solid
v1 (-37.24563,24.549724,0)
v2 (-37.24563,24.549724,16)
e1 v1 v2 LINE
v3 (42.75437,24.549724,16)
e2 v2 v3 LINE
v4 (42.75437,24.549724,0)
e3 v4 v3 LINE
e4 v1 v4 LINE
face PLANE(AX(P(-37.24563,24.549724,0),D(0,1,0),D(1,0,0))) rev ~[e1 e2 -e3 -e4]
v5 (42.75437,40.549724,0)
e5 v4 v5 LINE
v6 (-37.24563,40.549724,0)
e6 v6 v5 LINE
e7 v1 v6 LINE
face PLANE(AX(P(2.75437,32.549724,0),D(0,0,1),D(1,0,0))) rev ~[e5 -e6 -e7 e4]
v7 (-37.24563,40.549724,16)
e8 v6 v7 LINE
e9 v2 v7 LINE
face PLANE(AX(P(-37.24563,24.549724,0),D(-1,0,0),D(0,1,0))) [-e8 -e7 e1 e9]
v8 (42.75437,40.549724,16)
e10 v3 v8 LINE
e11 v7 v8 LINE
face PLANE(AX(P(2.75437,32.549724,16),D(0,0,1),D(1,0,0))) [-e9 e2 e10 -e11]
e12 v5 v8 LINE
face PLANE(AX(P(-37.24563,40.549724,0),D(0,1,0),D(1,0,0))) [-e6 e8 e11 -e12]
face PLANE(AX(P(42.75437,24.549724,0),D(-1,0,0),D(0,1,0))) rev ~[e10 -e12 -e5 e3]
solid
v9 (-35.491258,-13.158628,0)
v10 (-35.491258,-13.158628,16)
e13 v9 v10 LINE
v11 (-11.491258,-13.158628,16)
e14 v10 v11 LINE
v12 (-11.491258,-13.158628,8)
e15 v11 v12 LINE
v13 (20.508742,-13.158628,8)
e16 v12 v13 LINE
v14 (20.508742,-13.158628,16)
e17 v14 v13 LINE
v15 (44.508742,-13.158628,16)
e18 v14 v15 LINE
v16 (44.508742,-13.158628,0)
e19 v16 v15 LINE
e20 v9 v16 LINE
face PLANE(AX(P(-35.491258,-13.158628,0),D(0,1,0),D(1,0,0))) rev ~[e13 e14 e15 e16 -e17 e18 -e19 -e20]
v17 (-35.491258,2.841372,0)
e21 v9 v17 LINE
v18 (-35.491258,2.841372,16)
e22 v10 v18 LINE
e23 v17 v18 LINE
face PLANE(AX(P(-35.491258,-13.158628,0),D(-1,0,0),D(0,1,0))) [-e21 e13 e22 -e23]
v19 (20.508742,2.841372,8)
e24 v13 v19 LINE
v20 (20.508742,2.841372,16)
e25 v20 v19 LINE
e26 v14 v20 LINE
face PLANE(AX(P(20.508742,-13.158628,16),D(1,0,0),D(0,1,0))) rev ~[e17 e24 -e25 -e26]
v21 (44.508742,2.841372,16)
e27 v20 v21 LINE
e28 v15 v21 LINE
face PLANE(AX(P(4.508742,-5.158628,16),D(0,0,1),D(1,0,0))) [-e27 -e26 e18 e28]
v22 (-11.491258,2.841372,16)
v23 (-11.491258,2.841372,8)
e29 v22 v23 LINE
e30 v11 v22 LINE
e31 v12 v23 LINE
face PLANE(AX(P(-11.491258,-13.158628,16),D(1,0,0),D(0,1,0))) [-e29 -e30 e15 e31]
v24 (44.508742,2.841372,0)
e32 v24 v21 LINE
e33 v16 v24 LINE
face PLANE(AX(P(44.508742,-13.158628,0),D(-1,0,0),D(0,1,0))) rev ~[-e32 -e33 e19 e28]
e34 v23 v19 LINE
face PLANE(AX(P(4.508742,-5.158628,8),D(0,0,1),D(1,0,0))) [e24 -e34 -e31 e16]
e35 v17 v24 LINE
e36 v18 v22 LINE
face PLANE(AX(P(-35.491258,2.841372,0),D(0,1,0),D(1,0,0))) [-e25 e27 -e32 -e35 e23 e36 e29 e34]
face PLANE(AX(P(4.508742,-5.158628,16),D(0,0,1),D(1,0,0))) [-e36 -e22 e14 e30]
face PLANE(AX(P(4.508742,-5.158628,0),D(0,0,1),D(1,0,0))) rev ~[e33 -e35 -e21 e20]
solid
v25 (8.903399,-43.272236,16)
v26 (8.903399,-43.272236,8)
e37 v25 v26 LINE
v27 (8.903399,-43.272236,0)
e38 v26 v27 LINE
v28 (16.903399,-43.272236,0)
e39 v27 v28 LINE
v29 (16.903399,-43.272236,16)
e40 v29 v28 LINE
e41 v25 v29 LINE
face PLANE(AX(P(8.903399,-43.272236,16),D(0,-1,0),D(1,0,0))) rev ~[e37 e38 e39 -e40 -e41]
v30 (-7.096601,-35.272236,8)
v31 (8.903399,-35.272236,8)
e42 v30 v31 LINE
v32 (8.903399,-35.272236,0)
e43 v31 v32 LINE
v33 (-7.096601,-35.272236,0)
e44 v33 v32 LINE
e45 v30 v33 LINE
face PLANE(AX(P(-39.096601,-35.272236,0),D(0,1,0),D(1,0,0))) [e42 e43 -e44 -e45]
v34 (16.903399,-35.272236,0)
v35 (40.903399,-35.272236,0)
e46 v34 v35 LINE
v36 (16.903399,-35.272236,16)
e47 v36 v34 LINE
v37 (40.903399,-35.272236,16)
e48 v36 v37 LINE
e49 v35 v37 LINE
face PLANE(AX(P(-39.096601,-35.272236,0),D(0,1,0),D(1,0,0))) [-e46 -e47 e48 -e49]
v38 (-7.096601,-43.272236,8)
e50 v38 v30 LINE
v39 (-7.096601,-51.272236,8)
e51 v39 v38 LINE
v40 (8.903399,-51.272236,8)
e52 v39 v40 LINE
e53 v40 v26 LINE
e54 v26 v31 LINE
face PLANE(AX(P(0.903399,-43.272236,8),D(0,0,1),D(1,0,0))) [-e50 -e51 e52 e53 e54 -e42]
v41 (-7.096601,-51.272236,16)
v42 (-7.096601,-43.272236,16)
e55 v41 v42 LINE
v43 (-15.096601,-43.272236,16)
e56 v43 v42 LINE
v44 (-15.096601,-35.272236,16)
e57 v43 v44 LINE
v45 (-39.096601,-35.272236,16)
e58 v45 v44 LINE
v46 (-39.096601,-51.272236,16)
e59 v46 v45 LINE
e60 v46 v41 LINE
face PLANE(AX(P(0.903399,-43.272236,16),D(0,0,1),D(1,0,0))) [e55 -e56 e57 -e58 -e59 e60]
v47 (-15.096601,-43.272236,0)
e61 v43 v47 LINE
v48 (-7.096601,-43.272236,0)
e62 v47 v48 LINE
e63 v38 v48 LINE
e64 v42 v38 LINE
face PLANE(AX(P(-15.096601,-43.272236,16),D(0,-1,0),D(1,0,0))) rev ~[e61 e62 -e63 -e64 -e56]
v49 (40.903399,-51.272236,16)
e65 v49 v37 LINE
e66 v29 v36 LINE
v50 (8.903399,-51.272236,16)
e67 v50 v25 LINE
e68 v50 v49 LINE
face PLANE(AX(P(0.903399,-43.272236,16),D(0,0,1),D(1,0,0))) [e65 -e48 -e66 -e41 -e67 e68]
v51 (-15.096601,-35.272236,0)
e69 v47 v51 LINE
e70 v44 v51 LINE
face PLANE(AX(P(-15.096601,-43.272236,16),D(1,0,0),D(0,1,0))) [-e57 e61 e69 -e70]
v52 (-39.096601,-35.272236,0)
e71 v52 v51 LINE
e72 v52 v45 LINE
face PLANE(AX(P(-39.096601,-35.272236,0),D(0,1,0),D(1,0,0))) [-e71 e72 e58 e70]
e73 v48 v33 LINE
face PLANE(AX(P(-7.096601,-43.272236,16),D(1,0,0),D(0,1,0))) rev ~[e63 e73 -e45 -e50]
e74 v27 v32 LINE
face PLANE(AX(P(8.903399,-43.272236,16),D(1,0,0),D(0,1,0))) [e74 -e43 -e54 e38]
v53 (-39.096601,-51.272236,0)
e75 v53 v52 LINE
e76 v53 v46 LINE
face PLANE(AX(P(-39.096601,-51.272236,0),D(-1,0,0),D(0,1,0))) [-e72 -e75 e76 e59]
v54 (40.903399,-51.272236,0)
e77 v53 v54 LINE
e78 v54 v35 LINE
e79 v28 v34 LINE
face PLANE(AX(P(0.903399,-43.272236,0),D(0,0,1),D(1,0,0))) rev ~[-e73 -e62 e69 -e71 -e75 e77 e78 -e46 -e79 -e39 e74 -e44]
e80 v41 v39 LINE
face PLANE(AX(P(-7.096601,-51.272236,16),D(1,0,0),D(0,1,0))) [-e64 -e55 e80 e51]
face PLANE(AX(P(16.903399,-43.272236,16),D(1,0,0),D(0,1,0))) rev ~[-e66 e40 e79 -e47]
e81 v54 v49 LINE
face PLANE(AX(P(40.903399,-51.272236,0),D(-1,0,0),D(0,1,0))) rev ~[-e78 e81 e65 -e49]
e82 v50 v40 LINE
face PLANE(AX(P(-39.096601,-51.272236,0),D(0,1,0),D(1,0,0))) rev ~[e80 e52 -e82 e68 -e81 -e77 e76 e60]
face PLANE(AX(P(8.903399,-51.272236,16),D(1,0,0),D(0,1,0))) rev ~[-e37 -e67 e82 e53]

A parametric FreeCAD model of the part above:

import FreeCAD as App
import Part
import Sketcher

V = App.Vector
Q = App.Units.Quantity

doc = App.newDocument("Part")
body = doc.addObject("PartDesign::Body", "Body")
body.AllowCompound = True

# Sketch on XY plane
sketch1 = body.newObject("Sketcher::SketchObject", "Sketch")
sketch1.AttachmentSupport = (doc.getObject("XY_Plane"), [""])
sketch1.MapMode = "FlatFace"
sketch1.addGeometry([
    Part.LineSegment(V(-37, 41, 0), V(-37, 25, 0)),  # 0
    Part.LineSegment(V(-37, 25, 0), V(43, 25, 0)),  # 1
    Part.LineSegment(V(43, 25, 0), V(43, 41, 0)),  # 2
    Part.LineSegment(V(43, 41, 0), V(-37, 41, 0)),  # 3
    Part.LineSegment(V(-35, 3, 0), V(-35, -13, 0)),  # 4
    Part.LineSegment(V(-35, -13, 0), V(45, -13, 0)),  # 5
    Part.LineSegment(V(45, -13, 0), V(45, 3, 0)),  # 6
    Part.LineSegment(V(45, 3, 0), V(-35, 3, 0)),  # 7
    Part.LineSegment(V(-39, -35, 0), V(-39, -51, 0)),  # 8
    Part.LineSegment(V(-39, -51, 0), V(41, -51, 0)),  # 9
    Part.LineSegment(V(41, -51, 0), V(41, -35, 0)),  # 10
    Part.LineSegment(V(41, -35, 0), V(-39, -35, 0)),  # 11
], False)
sketch1.addConstraint([
    Sketcher.Constraint("Coincident", 0, 2, 1, 1),
    Sketcher.Constraint("Coincident", 1, 2, 2, 1),
    Sketcher.Constraint("Coincident", 2, 2, 3, 1),
    Sketcher.Constraint("Coincident", 3, 2, 0, 1),
    Sketcher.Constraint("Coincident", 4, 2, 5, 1),
    Sketcher.Constraint("Coincident", 5, 2, 6, 1),
    Sketcher.Constraint("Coincident", 6, 2, 7, 1),
    Sketcher.Constraint("Coincident", 7, 2, 4, 1),
    Sketcher.Constraint("Coincident", 8, 2, 9, 1),
    Sketcher.Constraint("Coincident", 9, 2, 10, 1),
    Sketcher.Constraint("Coincident", 10, 2, 11, 1),
    Sketcher.Constraint("Coincident", 11, 2, 8, 1),
    Sketcher.Constraint("Vertical", 0),
    Sketcher.Constraint("Horizontal", 1),
    Sketcher.Constraint("Vertical", 2),
    Sketcher.Constraint("Horizontal", 3),
    Sketcher.Constraint("Vertical", 4),
    Sketcher.Constraint("Horizontal", 5),
    Sketcher.Constraint("Vertical", 6),
    Sketcher.Constraint("Horizontal", 7),
    Sketcher.Constraint("Vertical", 8),
    Sketcher.Constraint("Horizontal", 9),
    Sketcher.Constraint("Vertical", 10),
    Sketcher.Constraint("Horizontal", 11),
    Sketcher.Constraint("Equal", 3, 5),
    Sketcher.Constraint("Equal", 7, 9),
    Sketcher.Constraint("Equal", 2, 4),
    Sketcher.Constraint("Equal", 6, 8),
    Sketcher.Constraint("DistanceX", 1, 1, 1, 2, Q("80 mm")),
    Sketcher.Constraint("DistanceY", 0, 2, 0, 1, Q("16 mm")),
    Sketcher.Constraint("DistanceX", 8, 2, -1, 1, Q("39.096601 mm")),
    Sketcher.Constraint("DistanceX", 0, 2, -1, 1, Q("37.24563 mm")),
    Sketcher.Constraint("DistanceX", 4, 2, -1, 1, Q("35.491258 mm")),
    Sketcher.Constraint("DistanceY", -1, 1, 6, 2, Q("2.841372 mm")),
    Sketcher.Constraint("DistanceY", 4, 2, 3, 2, Q("53.708352 mm")),
    Sketcher.Constraint("DistanceY", 8, 2, 0, 2, Q("75.82196 mm")),
])
pad1 = body.newObject("PartDesign::Pad", "Pad")
pad1.Profile = sketch1
pad1.Length = 16

# Sketch on XY plane
sketch2 = body.newObject("Sketcher::SketchObject", "Sketch001")
sketch2.AttachmentSupport = (doc.getObject("XY_Plane"), [""])
sketch2.MapMode = "FlatFace"
sketch2.AttachmentOffset = App.Placement(V(0, 0, 16), App.Rotation())
sketch2.addGeometry([
    Part.LineSegment(V(-11, 3, 0), V(-11, -13, 0)),
    Part.LineSegment(V(-11, -13, 0), V(21, -13, 0)),
    Part.LineSegment(V(21, -13, 0), V(21, 3, 0)),
    Part.LineSegment(V(21, 3, 0), V(-11, 3, 0)),
], False)
sketch2.addConstraint([
    Sketcher.Constraint("Coincident", 0, 2, 1, 1),
    Sketcher.Constraint("Coincident", 1, 2, 2, 1),
    Sketcher.Constraint("Coincident", 2, 2, 3, 1),
    Sketcher.Constraint("Coincident", 3, 2, 0, 1),
    Sketcher.Constraint("Vertical", 0),
    Sketcher.Constraint("Horizontal", 1),
    Sketcher.Constraint("Vertical", 2),
    Sketcher.Constraint("Horizontal", 3),
    Sketcher.Constraint("DistanceX", 1, 1, 1, 2, Q("32 mm")),
    Sketcher.Constraint("DistanceY", 0, 2, 0, 1, Q("16 mm")),
    Sketcher.Constraint("DistanceY", -1, 1, 2, 2, Q("2.841372 mm")),
    Sketcher.Constraint("DistanceX", 0, 2, -1, 1, Q("11.491258 mm")),
])
pocket1 = body.newObject("PartDesign::Pocket", "Pocket")
pocket1.Profile = sketch2
pocket1.Length = 8

# Sketch on XY plane
sketch3 = body.newObject("Sketcher::SketchObject", "Sketch002")
sketch3.AttachmentSupport = (doc.getObject("XY_Plane"), [""])
sketch3.MapMode = "FlatFace"
sketch3.AttachmentOffset = App.Placement(V(0, 0, 16), App.Rotation())
sketch3.addGeometry([
    Part.LineSegment(V(-7, -35, 0), V(-7, -51, 0)),
    Part.LineSegment(V(-7, -51, 0), V(9, -51, 0)),
    Part.LineSegment(V(9, -51, 0), V(9, -35, 0)),
    Part.LineSegment(V(9, -35, 0), V(-7, -35, 0)),
], False)
sketch3.addConstraint([
    Sketcher.Constraint("Coincident", 0, 2, 1, 1),
    Sketcher.Constraint("Coincident", 1, 2, 2, 1),
    Sketcher.Constraint("Coincident", 2, 2, 3, 1),
    Sketcher.Constraint("Coincident", 3, 2, 0, 1),
    Sketcher.Constraint("Vertical", 0),
    Sketcher.Constraint("Horizontal", 1),
    Sketcher.Constraint("Vertical", 2),
    Sketcher.Constraint("Horizontal", 3),
    Sketcher.Constraint("Equal", 3, 0),
    Sketcher.Constraint("DistanceX", 1, 1, 1, 2, Q("16 mm")),
    Sketcher.Constraint("DistanceX", 0, 2, -1, 1, Q("7.096601 mm")),
    Sketcher.Constraint("DistanceY", 0, 2, -1, 1, Q("51.272236 mm")),
])
pocket2 = body.newObject("PartDesign::Pocket", "Pocket001")
pocket2.Profile = sketch3
pocket2.Length = 8

# Sketch on XY plane
sketch4 = body.newObject("Sketcher::SketchObject", "Sketch003")
sketch4.AttachmentSupport = (doc.getObject("XY_Plane"), [""])
sketch4.MapMode = "FlatFace"
sketch4.AttachmentOffset = App.Placement(V(0, 0, 16), App.Rotation())
sketch4.addGeometry([
    Part.LineSegment(V(9, -35, 0), V(9, -43, 0)),
    Part.LineSegment(V(9, -43, 0), V(17, -43, 0)),
    Part.LineSegment(V(17, -43, 0), V(17, -35, 0)),
    Part.LineSegment(V(17, -35, 0), V(9, -35, 0)),
], False)
sketch4.addConstraint([
    Sketcher.Constraint("Coincident", 0, 2, 1, 1),
    Sketcher.Constraint("Coincident", 1, 2, 2, 1),
    Sketcher.Constraint("Coincident", 2, 2, 3, 1),
    Sketcher.Constraint("Coincident", 3, 2, 0, 1),
    Sketcher.Constraint("Vertical", 0),
    Sketcher.Constraint("Horizontal", 1),
    Sketcher.Constraint("Vertical", 2),
    Sketcher.Constraint("Horizontal", 3),
    Sketcher.Constraint("Equal", 3, 0),
    Sketcher.Constraint("DistanceX", 1, 1, 1, 2, Q("8 mm")),
    Sketcher.Constraint("DistanceX", -1, 1, 0, 2, Q("8.903399 mm")),
    Sketcher.Constraint("DistanceY", 0, 2, -1, 1, Q("43.272236 mm")),
])
pocket3 = body.newObject("PartDesign::Pocket", "Pocket002")
pocket3.Profile = sketch4
pocket3.Length = 16

# Sketch on XY plane
sketch5 = body.newObject("Sketcher::SketchObject", "Sketch004")
sketch5.AttachmentSupport = (doc.getObject("XY_Plane"), [""])
sketch5.MapMode = "FlatFace"
sketch5.AttachmentOffset = App.Placement(V(0, 0, 16), App.Rotation())
sketch5.addGeometry([
    Part.LineSegment(V(-15, -35, 0), V(-15, -43, 0)),
    Part.LineSegment(V(-15, -43, 0), V(-7, -43, 0)),
    Part.LineSegment(V(-7, -43, 0), V(-7, -35, 0)),
    Part.LineSegment(V(-7, -35, 0), V(-15, -35, 0)),
], False)
sketch5.addConstraint([
    Sketcher.Constraint("Coincident", 0, 2, 1, 1),
    Sketcher.Constraint("Coincident", 1, 2, 2, 1),
    Sketcher.Constraint("Coincident", 2, 2, 3, 1),
    Sketcher.Constraint("Coincident", 3, 2, 0, 1),
    Sketcher.Constraint("Vertical", 0),
    Sketcher.Constraint("Horizontal", 1),
    Sketcher.Constraint("Vertical", 2),
    Sketcher.Constraint("Horizontal", 3),
    Sketcher.Constraint("Equal", 3, 0),
    Sketcher.Constraint("DistanceX", 1, 1, 1, 2, Q("8 mm")),
    Sketcher.Constraint("DistanceX", 0, 2, -1, 1, Q("15.096601 mm")),
    Sketcher.Constraint("DistanceY", 0, 2, -1, 1, Q("43.272236 mm")),
])
pocket4 = body.newObject("PartDesign::Pocket", "Pocket003")
pocket4.Profile = sketch5
pocket4.Length = 25

doc.recompute()
